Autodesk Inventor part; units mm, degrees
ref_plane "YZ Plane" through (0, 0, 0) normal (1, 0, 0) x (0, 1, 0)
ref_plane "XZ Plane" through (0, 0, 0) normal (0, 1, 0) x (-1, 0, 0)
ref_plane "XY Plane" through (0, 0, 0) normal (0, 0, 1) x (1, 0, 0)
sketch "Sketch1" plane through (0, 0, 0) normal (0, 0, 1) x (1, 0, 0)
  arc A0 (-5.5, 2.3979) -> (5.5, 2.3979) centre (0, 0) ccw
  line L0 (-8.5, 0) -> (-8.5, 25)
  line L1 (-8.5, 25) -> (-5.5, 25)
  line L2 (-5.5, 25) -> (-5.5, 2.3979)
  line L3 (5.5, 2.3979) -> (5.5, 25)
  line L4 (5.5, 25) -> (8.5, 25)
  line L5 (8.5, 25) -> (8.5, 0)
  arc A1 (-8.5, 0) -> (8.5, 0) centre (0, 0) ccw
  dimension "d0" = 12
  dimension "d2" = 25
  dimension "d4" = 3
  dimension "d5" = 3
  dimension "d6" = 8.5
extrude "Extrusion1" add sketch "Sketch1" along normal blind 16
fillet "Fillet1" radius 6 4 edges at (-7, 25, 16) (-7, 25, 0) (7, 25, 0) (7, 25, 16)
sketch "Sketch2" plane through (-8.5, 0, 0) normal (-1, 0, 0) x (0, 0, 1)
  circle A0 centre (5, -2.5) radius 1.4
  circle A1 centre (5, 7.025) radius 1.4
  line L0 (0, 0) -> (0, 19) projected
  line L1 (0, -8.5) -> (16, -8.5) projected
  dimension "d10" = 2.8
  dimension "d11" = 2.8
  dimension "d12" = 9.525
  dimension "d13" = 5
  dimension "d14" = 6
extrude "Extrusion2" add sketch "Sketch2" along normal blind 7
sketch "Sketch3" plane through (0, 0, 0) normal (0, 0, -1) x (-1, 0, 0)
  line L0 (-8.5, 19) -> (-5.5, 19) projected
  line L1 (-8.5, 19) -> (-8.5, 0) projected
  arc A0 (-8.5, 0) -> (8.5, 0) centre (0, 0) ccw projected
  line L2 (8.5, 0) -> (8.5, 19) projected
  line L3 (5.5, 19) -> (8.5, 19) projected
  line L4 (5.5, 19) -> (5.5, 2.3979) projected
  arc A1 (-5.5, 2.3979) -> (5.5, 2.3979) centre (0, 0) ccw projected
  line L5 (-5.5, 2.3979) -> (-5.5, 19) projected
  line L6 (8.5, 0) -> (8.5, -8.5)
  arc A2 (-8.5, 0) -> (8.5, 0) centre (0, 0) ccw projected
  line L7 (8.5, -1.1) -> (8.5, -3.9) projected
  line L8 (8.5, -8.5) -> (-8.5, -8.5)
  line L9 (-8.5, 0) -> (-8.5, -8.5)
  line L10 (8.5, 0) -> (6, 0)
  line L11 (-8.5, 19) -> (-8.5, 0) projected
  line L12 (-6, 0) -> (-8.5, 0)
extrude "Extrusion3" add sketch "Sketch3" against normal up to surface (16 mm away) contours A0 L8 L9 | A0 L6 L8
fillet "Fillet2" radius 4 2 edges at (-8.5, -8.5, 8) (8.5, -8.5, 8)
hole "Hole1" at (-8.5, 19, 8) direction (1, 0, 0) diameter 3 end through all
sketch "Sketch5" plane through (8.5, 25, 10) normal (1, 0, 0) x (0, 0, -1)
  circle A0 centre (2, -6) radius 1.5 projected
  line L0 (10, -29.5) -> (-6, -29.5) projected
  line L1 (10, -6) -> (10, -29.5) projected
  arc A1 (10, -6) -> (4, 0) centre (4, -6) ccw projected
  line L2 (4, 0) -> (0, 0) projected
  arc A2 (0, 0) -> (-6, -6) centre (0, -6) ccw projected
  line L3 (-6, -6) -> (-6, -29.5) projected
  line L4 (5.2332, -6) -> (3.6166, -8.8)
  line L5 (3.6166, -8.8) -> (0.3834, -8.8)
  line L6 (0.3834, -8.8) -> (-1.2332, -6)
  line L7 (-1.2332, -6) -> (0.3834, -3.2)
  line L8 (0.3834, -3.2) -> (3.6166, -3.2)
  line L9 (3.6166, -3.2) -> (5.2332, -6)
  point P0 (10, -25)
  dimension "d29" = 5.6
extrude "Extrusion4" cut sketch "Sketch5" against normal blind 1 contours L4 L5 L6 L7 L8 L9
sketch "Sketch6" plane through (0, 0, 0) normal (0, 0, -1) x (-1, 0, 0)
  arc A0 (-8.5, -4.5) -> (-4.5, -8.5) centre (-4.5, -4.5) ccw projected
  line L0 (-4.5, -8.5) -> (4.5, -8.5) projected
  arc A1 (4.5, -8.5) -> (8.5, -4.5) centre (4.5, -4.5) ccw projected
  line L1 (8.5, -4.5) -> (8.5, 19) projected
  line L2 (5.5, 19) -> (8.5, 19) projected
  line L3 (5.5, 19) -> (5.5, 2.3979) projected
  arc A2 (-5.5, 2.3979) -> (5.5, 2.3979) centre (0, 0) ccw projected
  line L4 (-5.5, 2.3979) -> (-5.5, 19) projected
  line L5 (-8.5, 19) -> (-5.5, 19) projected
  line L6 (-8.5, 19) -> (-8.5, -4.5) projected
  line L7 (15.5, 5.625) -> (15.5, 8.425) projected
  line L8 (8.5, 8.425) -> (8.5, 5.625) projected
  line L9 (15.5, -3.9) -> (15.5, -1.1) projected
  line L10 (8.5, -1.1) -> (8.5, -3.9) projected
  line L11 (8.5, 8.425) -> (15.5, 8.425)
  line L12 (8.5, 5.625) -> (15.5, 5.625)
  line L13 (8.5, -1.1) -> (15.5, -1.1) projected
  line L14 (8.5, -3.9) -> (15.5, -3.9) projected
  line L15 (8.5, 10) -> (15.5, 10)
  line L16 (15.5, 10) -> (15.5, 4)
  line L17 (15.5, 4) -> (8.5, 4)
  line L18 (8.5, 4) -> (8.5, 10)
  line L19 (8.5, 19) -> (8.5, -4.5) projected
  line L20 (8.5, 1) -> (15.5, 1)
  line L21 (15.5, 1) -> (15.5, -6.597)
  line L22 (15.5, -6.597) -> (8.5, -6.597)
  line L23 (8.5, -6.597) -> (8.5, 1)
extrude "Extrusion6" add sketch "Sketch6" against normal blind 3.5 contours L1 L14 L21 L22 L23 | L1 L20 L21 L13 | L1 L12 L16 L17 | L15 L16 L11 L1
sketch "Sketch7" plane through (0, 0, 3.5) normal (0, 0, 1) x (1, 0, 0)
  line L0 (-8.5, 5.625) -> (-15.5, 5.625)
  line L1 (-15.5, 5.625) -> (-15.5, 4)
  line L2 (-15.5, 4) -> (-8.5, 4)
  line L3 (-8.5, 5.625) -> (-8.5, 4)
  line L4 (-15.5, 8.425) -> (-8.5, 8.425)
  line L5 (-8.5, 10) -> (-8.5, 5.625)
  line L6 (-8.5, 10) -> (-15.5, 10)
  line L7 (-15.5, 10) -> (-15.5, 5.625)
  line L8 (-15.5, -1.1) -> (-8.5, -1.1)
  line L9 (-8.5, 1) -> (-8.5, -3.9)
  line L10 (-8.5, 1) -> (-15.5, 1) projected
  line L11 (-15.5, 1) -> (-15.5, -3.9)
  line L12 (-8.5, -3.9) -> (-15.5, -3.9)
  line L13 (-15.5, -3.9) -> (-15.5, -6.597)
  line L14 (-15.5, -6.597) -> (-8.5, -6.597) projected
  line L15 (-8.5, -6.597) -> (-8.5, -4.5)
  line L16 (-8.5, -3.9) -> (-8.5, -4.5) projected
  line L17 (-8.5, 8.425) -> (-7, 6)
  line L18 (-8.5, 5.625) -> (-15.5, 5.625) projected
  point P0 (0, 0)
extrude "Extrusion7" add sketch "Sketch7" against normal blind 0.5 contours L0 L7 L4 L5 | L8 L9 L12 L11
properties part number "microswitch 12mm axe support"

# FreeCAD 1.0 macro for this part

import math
import FreeCAD as App
import Part
import Sketcher

V = App.Vector
Q = App.Units.Quantity


def edges_at(feature, points):
    """Names of the edges that pass closest to the given points."""
    edges = feature.Shape.Edges
    near = lambda p: min(range(len(edges)), key=lambda i: edges[i].distToShape(Part.Vertex(*p))[0])
    return sorted({f"Edge{near(p) + 1}" for p in points})


def add_polygon(sketch, points):
    """Adds a closed chain of lines whose ends are joined by coincident constraints."""
    first, n = sketch.GeometryCount, len(points)
    for a, b in zip(points, points[1:] + points[:1]):
        sketch.addGeometry(Part.LineSegment(App.Vector(*a, 0), App.Vector(*b, 0)), False)
    for i in range(n):
        sketch.addConstraint(Sketcher.Constraint("Coincident", first + i, 2, first + (i + 1) % n, 1))

doc = App.newDocument("Part")
body = doc.addObject("PartDesign::Body", "Body")
body.AllowCompound = True

sketch1 = doc.addObject("Sketcher::SketchObject", "Sketch")
body.addObject(sketch1)
sketch1.AttachmentSupport = (doc.XY_Plane, [""])
sketch1.MapMode = "FlatFace"
sketch1.addGeometry(Part.ArcOfCircle(Part.Circle(V(0, 0, 0), V(0, 0, 1), 6), math.radians(156), math.radians(384)), False)
sketch1.addGeometry(Part.LineSegment(V(-5.5, 2.4, 0), V(-5.5, 25, 0)), False)
sketch1.addGeometry(Part.LineSegment(V(-5.5, 25, 0), V(-8.5, 25, 0)), False)
sketch1.addGeometry(Part.LineSegment(V(-8.5, 25, 0), V(-8.5, 0, 0)), False)
sketch1.addGeometry(Part.ArcOfCircle(Part.Circle(V(0, 0, 0), V(0, 0, 1), 8.5), math.radians(180), math.radians(360)), False)
sketch1.addGeometry(Part.LineSegment(V(8.5, 0, 0), V(8.5, 25, 0)), False)
sketch1.addGeometry(Part.LineSegment(V(8.5, 25, 0), V(5.5, 25, 0)), False)
sketch1.addGeometry(Part.LineSegment(V(5.5, 25, 0), V(5.5, 2.4, 0)), False)
sketch1.addConstraint(Sketcher.Constraint("Coincident", 0, 1, 1, 1))
sketch1.addConstraint(Sketcher.Constraint("Coincident", 1, 2, 2, 1))
sketch1.addConstraint(Sketcher.Constraint("Coincident", 2, 2, 3, 1))
sketch1.addConstraint(Sketcher.Constraint("Tangent", 3, 2, 4, 1))
sketch1.addConstraint(Sketcher.Constraint("Tangent", 4, 2, 5, 1))
sketch1.addConstraint(Sketcher.Constraint("Coincident", 5, 2, 6, 1))
sketch1.addConstraint(Sketcher.Constraint("Coincident", 6, 2, 7, 1))
sketch1.addConstraint(Sketcher.Constraint("Coincident", 7, 2, 0, 2))
sketch1.addConstraint(Sketcher.Constraint("Vertical", 1))
sketch1.addConstraint(Sketcher.Constraint("Horizontal", 2))
sketch1.addConstraint(Sketcher.Constraint("Vertical", 3))
sketch1.addConstraint(Sketcher.Constraint("Vertical", 5))
sketch1.addConstraint(Sketcher.Constraint("Horizontal", 6))
sketch1.addConstraint(Sketcher.Constraint("Vertical", 7))
sketch1.addConstraint(Sketcher.Constraint("Coincident", 0, 3, -1, 1))
sketch1.addConstraint(Sketcher.Constraint("Coincident", 4, 3, -1, 1))
sketch1.addConstraint(Sketcher.Constraint("Symmetric", 1, 2, 6, 2, -2))
sketch1.addConstraint(Sketcher.Constraint("Radius", 0, 6.0))
sketch1.addConstraint(Sketcher.Constraint("Radius", 4, 8.5))
sketch1.addConstraint(Sketcher.Constraint("DistanceX", 2, 2, 2, 1, 3.0))
sketch1.addConstraint(Sketcher.Constraint("DistanceY", 3, 2, 3, 1, 25.0))
pad1 = doc.addObject("PartDesign::Pad", "Pad")
body.addObject(pad1)
pad1.Profile = sketch1
pad1.Length = 16
doc.recompute()

fillet = doc.addObject("PartDesign::Fillet", "Fillet")
body.addObject(fillet)
fillet.Base = (pad1, edges_at(pad1, [
    (-7, 25, 16),
    (-7, 25, 0),
    (7, 25, 0),
    (7, 25, 16),
]))
fillet.Radius = 6

sketch2 = doc.addObject("Sketcher::SketchObject", "Sketch001")
body.addObject(sketch2)
sketch2.AttachmentSupport = (doc.YZ_Plane, [""])
sketch2.MapMode = "FlatFace"
sketch2.AttachmentOffset = App.Placement(V(0, 0, -8.5), App.Rotation())
sketch2.addGeometry(Part.Circle(V(-2.5, 5, 0), V(0, 0, 1), 1.4), False)
sketch2.addGeometry(Part.Circle(V(7, 5, 0), V(0, 0, 1), 1.4), False)
sketch2.addConstraint(Sketcher.Constraint("Equal", 0, 1))
sketch2.addConstraint(Sketcher.Constraint("Horizontal", 0, 3, 1, 3))
sketch2.addConstraint(Sketcher.Constraint("Diameter", 0, 2.8))
sketch2.addConstraint(Sketcher.Constraint("DistanceY", -1, 1, 0, 3, 5.0))
sketch2.addConstraint(Sketcher.Constraint("DistanceX", 0, 3, 1, 3, 9.525))
sketch2.addConstraint(Sketcher.Constraint("DistanceX", 0, 3, -1, 1, 2.5))
pad2 = doc.addObject("PartDesign::Pad", "Pad001")
body.addObject(pad2)
pad2.Profile = sketch2
pad2.Length = 7
pad2.Reversed = True

sketch3 = doc.addObject("Sketcher::SketchObject", "Sketch002")
body.addObject(sketch3)
sketch3.AttachmentSupport = (doc.XY_Plane, [""])
sketch3.MapMode = "FlatFace"
sketch3.addGeometry(Part.ArcOfCircle(Part.Circle(V(0, 0, 0), V(0, 0, 1), 8), math.radians(-90), math.radians(0)), False)
sketch3.addGeometry(Part.LineSegment(V(8, 0, 0), V(8, -8, 0)), False)
sketch3.addGeometry(Part.LineSegment(V(8, -8, 0), V(0, -8, 0)), False)
sketch3.addGeometry(Part.ArcOfCircle(Part.Circle(V(0, 0, 0), V(0, 0, 1), 8), math.radians(180), math.radians(270)), False)
sketch3.addGeometry(Part.LineSegment(V(0, -8, 0), V(-8, -8, 0)), False)
sketch3.addGeometry(Part.LineSegment(V(-8, -8, 0), V(-8, 0, 0)), False)
sketch3.addConstraint(Sketcher.Constraint("Tangent", 0, 2, 1, 1))
sketch3.addConstraint(Sketcher.Constraint("Coincident", 1, 2, 2, 1))
sketch3.addConstraint(Sketcher.Constraint("Tangent", 2, 2, 0, 1))
sketch3.addConstraint(Sketcher.Constraint("Tangent", 3, 2, 4, 1))
sketch3.addConstraint(Sketcher.Constraint("Coincident", 4, 2, 5, 1))
sketch3.addConstraint(Sketcher.Constraint("Tangent", 5, 2, 3, 1))
sketch3.addConstraint(Sketcher.Constraint("Vertical", 1))
sketch3.addConstraint(Sketcher.Constraint("Horizontal", 2))
sketch3.addConstraint(Sketcher.Constraint("Horizontal", 4))
sketch3.addConstraint(Sketcher.Constraint("Vertical", 5))
sketch3.addConstraint(Sketcher.Constraint("Coincident", 0, 3, -1, 1))
sketch3.addConstraint(Sketcher.Constraint("Coincident", 3, 3, -1, 1))
sketch3.addConstraint(Sketcher.Constraint("Equal", 0, 3))
sketch3.addConstraint(Sketcher.Constraint("Radius", 0, 8.5))
pad3 = doc.addObject("PartDesign::Pad", "Pad002")
body.addObject(pad3)
pad3.Profile = sketch3
pad3.Length = 16
doc.recompute()

fillet2 = doc.addObject("PartDesign::Fillet", "Fillet001")
body.addObject(fillet2)
fillet2.Base = (pad3, edges_at(pad3, [(-8.5, -8.5, 8), (8.5, -8.5, 8)]))
fillet2.Radius = 4

sketch4 = doc.addObject("Sketcher::SketchObject", "Sketch003")
body.addObject(sketch4)
sketch4.AttachmentSupport = (doc.YZ_Plane, [""])
sketch4.MapMode = "FlatFace"
sketch4.AttachmentOffset = App.Placement(V(0, 0, -8.5), App.Rotation())
sketch4.addGeometry(Part.Circle(V(19, 8, 0), V(0, 0, 1), 1.5), False)
sketch4.addConstraint(Sketcher.Constraint("Diameter", 0, 3.0))
sketch4.addConstraint(Sketcher.Constraint("DistanceX", -1, 1, 0, 3, 19.0))
sketch4.addConstraint(Sketcher.Constraint("DistanceY", -1, 1, 0, 3, 8.0))
doc.recompute()
hole = doc.addObject("PartDesign::Hole", "Hole")
body.addObject(hole)
hole.Profile = sketch4
hole.ThreadType = "None"
hole.Diameter = 3
hole.DepthType = "ThroughAll"
hole.Reversed = True

sketch5 = doc.addObject("Sketcher::SketchObject", "Sketch004")
body.addObject(sketch5)
sketch5.AttachmentSupport = (doc.YZ_Plane, [""])
sketch5.MapMode = "FlatFace"
sketch5.AttachmentOffset = App.Placement(V(0, 0, 8.5), App.Rotation())
add_polygon(sketch5, [(16.2, 6.4), (19, 4.8), (21.8, 6.4), (21.8, 9.6), (19, 11.2), (16.2, 9.6)])
sketch5.addGeometry(Part.Circle(V(19, 8, 0), V(0, 0, 1), 1.5), False)
sketch5.addConstraint(Sketcher.Constraint("Vertical", 2))
sketch5.addConstraint(Sketcher.Constraint("Vertical", 5))
sketch5.addConstraint(Sketcher.Constraint("Parallel", 0, 3))
sketch5.addConstraint(Sketcher.Constraint("Parallel", 1, 4))
sketch5.addConstraint(Sketcher.Constraint("Horizontal", 2, 2, 4, 2))
sketch5.addConstraint(Sketcher.Constraint("Horizontal", 1, 2, 5, 2))
sketch5.addConstraint(Sketcher.Constraint("Vertical", 6, 3, 0, 2))
sketch5.addConstraint(Sketcher.Constraint("Vertical", 0, 2, 3, 2))
sketch5.addConstraint(Sketcher.Constraint("Diameter", 6, 3.0))
sketch5.addConstraint(Sketcher.Constraint("DistanceX", 4, 2, 2, 2, 5.6))
sketch5.addConstraint(Sketcher.Constraint("Angle", 0, Q("-30.0003 deg")))
sketch5.addConstraint(Sketcher.Constraint("DistanceX", -1, 1, 6, 3, 19.0))
sketch5.addConstraint(Sketcher.Constraint("DistanceY", -1, 1, 6, 3, 8.0))
sketch5.addConstraint(Sketcher.Constraint("DistanceY", 2, 1, 2, 2, 3.2332))
sketch5.addConstraint(Sketcher.Constraint("DistanceY", -1, 1, 0, 2, 4.7668))
pocket1 = doc.addObject("PartDesign::Pocket", "Pocket")
body.addObject(pocket1)
pocket1.Profile = sketch5
pocket1.Length = 1

sketch6 = doc.addObject("Sketcher::SketchObject", "Sketch005")
body.addObject(sketch6)
sketch6.AttachmentSupport = (doc.XY_Plane, [""])
sketch6.MapMode = "FlatFace"
add_polygon(sketch6, [(-8.5, -3.9), (-8.5, -6.6), (-15.5, -6.6), (-15.5, -3.9)])
add_polygon(sketch6, [(-8.5, 1), (-8.5, -1.1), (-15.5, -1.1), (-15.5, 1)])
add_polygon(sketch6, [(-8.5, 5.6), (-8.5, 4), (-15.5, 4), (-15.5, 5.6)])
add_polygon(sketch6, [(-15.5, 10), (-8.5, 10), (-8.5, 8.4), (-15.5, 8.4)])
sketch6.addConstraint(Sketcher.Constraint("Vertical", 0))
sketch6.addConstraint(Sketcher.Constraint("Horizontal", 1))
sketch6.addConstraint(Sketcher.Constraint("Vertical", 2))
sketch6.addConstraint(Sketcher.Constraint("Horizontal", 3))
sketch6.addConstraint(Sketcher.Constraint("Vertical", 4))
sketch6.addConstraint(Sketcher.Constraint("Horizontal", 5))
sketch6.addConstraint(Sketcher.Constraint("Vertical", 6))
sketch6.addConstraint(Sketcher.Constraint("Horizontal", 7))
sketch6.addConstraint(Sketcher.Constraint("Vertical", 8))
sketch6.addConstraint(Sketcher.Constraint("Horizontal", 9))
sketch6.addConstraint(Sketcher.Constraint("Vertical", 10))
sketch6.addConstraint(Sketcher.Constraint("Horizontal", 11))
sketch6.addConstraint(Sketcher.Constraint("Horizontal", 12))
sketch6.addConstraint(Sketcher.Constraint("Vertical", 13))
sketch6.addConstraint(Sketcher.Constraint("Horizontal", 14))
sketch6.addConstraint(Sketcher.Constraint("Vertical", 15))
sketch6.addConstraint(Sketcher.Constraint("Vertical", 3, 2, 4, 2))
sketch6.addConstraint(Sketcher.Constraint("Vertical", 2, 2, 5, 2))
sketch6.addConstraint(Sketcher.Constraint("Vertical", 7, 2, 8, 2))
sketch6.addConstraint(Sketcher.Constraint("Vertical", 6, 2, 9, 2))
sketch6.addConstraint(Sketcher.Constraint("Vertical", 11, 2, 12, 2))
sketch6.addConstraint(Sketcher.Constraint("Vertical", 10, 2, 14, 2))
sketch6.addConstraint(Sketcher.Constraint("DistanceX", 1, 2, 1, 1, 7.0))
sketch6.addConstraint(Sketcher.Constraint("DistanceY", 4, 2, 4, 1, 2.1))
sketch6.addConstraint(Sketcher.Constraint("DistanceY", -1, 1, 6, 2, 1.0))
sketch6.addConstraint(Sketcher.Constraint("DistanceY", -1, 1, 8, 2, 4.0))
sketch6.addConstraint(Sketcher.Constraint("DistanceY", -1, 1, 12, 2, 10.0))
sketch6.addConstraint(Sketcher.Constraint("DistanceX", 0, 2, -1, 1, 8.5))
sketch6.addConstraint(Sketcher.Constraint("DistanceY", 2, 2, -1, 1, 3.9))
sketch6.addConstraint(Sketcher.Constraint("DistanceY", 11, 2, 13, 2, 2.8))
sketch6.addConstraint(Sketcher.Constraint("DistanceY", 0, 2, 0, 1, 2.697))
sketch6.addConstraint(Sketcher.Constraint("DistanceY", 8, 2, 8, 1, 1.625))
pad4 = doc.addObject("PartDesign::Pad", "Pad003")
body.addObject(pad4)
pad4.Profile = sketch6
pad4.Length = 3.5

sketch7 = doc.addObject("Sketcher::SketchObject", "Sketch006")
body.addObject(sketch7)
sketch7.AttachmentSupport = (doc.XY_Plane, [""])
sketch7.MapMode = "FlatFace"
sketch7.AttachmentOffset = App.Placement(V(0, 0, 3.5), App.Rotation())
add_polygon(sketch7, [(-15.5, 5.6), (-8.5, 5.6), (-8.5, 8.4), (-15.5, 8.4)])
add_polygon(sketch7, [(-8.5, -1.1), (-15.5, -1.1), (-15.5, -3.9), (-8.5, -3.9)])
sketch7.addConstraint(Sketcher.Constraint("Horizontal", 0))
sketch7.addConstraint(Sketcher.Constraint("Vertical", 1))
sketch7.addConstraint(Sketcher.Constraint("Horizontal", 2))
sketch7.addConstraint(Sketcher.Constraint("Vertical", 3))
sketch7.addConstraint(Sketcher.Constraint("Horizontal", 4))
sketch7.addConstraint(Sketcher.Constraint("Vertical", 5))
sketch7.addConstraint(Sketcher.Constraint("Horizontal", 6))
sketch7.addConstraint(Sketcher.Constraint("Vertical", 7))
sketch7.addConstraint(Sketcher.Constraint("Vertical", 3, 2, 4, 2))
sketch7.addConstraint(Sketcher.Constraint("Vertical", 1, 2, 6, 2))
sketch7.addConstraint(Sketcher.Constraint("Equal", 3, 5))
sketch7.addConstraint(Sketcher.Constraint("DistanceX", 0, 1, 0, 2, 7.0))
sketch7.addConstraint(Sketcher.Constraint("DistanceY", 1, 1, 1, 2, 2.8))
sketch7.addConstraint(Sketcher.Constraint("DistanceX", 0, 2, -1, 1, 8.5))
sketch7.addConstraint(Sketcher.Constraint("DistanceY", 4, 2, -1, 1, 1.1))
sketch7.addConstraint(Sketcher.Constraint("DistanceY", -1, 1, 0, 2, 5.625))
pad5 = doc.addObject("PartDesign::Pad", "Pad004")
body.addObject(pad5)
pad5.Profile = sketch7
pad5.Length = 0.5
pad5.Reversed = True

doc.recompute()
